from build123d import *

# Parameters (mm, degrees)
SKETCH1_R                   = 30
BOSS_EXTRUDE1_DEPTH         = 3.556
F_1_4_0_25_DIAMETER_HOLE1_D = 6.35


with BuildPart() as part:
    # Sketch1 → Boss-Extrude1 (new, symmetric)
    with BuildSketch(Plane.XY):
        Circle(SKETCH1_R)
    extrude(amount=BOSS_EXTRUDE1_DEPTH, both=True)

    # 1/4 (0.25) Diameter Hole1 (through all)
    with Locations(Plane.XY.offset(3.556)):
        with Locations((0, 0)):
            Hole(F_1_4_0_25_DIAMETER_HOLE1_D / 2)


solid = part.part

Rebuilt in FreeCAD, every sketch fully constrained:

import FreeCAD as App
import Part
import Sketcher
Q = App.Units.Quantity

doc = App.newDocument("Part")
body = doc.addObject("PartDesign::Body", "Body")

# Sketch on XY plane
sketch1 = body.newObject("Sketcher::SketchObject", "Sketch")
sketch1.AttachmentSupport = (doc.getObject("XY_Plane"), [""])
sketch1.MapMode = "FlatFace"
sketch1.addGeometry(Part.Circle(App.Vector(0, 0, 0), App.Vector(0, 0, 1), 30), False)
sketch1.addConstraint([
    Sketcher.Constraint("Coincident", 0, 3, -1, 1),
    Sketcher.Constraint("Diameter", 0, Q("60 mm")),
])
pad1 = body.newObject("PartDesign::Pad", "Pad")
pad1.Profile = sketch1
pad1.Length = Q("0.28 in")
pad1.Midplane = True

# Sketch on XY plane
sketch2 = body.newObject("Sketcher::SketchObject", "Sketch001")
sketch2.AttachmentSupport = (doc.getObject("XY_Plane"), [""])
sketch2.MapMode = "FlatFace"
sketch2.AttachmentOffset = App.Placement(App.Vector(0, 0, 0.14 * 25.4), App.Rotation())
sketch2.addGeometry(Part.Circle(App.Vector(0, 0, 0), App.Vector(0, 0, 1), 3.2), False)
sketch2.addConstraint([
    Sketcher.Constraint("Coincident", 0, 3, -1, 1),
    Sketcher.Constraint("Diameter", 0, Q("0.25 in")),
])
doc.recompute()
hole = body.newObject("PartDesign::Hole", "Hole")
hole.Profile = sketch2
hole.ThreadType = "None"
hole.Diameter = Q("0.25 in")
hole.DepthType = "ThroughAll"

doc.recompute()
